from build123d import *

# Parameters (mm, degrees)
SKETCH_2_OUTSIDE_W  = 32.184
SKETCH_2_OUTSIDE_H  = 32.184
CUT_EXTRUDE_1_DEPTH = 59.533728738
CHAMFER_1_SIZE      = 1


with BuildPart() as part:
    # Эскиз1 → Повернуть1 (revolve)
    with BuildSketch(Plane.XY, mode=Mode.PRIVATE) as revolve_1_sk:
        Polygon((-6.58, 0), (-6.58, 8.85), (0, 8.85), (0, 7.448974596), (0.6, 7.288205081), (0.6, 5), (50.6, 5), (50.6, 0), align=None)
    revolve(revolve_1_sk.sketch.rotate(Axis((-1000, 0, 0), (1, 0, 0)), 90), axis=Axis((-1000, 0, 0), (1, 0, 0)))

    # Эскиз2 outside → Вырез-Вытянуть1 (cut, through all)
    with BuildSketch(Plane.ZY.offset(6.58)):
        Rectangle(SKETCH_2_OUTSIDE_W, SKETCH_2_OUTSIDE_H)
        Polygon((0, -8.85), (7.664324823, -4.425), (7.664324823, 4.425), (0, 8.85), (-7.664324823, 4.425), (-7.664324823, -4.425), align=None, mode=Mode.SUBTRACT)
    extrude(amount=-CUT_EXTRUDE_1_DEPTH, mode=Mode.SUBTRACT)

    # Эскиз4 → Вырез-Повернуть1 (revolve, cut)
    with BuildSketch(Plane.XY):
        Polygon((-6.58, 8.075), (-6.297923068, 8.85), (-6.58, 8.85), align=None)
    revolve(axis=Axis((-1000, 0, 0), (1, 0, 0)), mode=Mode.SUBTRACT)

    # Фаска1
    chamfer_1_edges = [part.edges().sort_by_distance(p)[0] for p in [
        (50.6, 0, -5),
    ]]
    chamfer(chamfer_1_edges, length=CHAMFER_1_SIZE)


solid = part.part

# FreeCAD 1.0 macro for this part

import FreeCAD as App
import Part
import Sketcher

V = App.Vector
Q = App.Units.Quantity


def edges_at(feature, points):
    """Names of the edges that pass closest to the given points."""
    edges = feature.Shape.Edges
    near = lambda p: min(range(len(edges)), key=lambda i: edges[i].distToShape(Part.Vertex(*p))[0])
    return sorted({f"Edge{near(p) + 1}" for p in points})


def add_polygon(sketch, points):
    """Adds a closed chain of lines whose ends are joined by coincident constraints."""
    first, n = sketch.GeometryCount, len(points)
    for a, b in zip(points, points[1:] + points[:1]):
        sketch.addGeometry(Part.LineSegment(App.Vector(*a, 0), App.Vector(*b, 0)), False)
    for i in range(n):
        sketch.addConstraint(Sketcher.Constraint("Coincident", first + i, 2, first + (i + 1) % n, 1))

doc = App.newDocument("Part")
body = doc.addObject("PartDesign::Body", "Body")

sketch1 = doc.addObject("Sketcher::SketchObject", "Sketch")
body.addObject(sketch1)
sketch1.AttachmentSupport = (doc.XY_Plane, [""])
sketch1.MapMode = "FlatFace"
add_polygon(sketch1, [(-6.6, 8.8), (-6.6, 0), (50.6, 0), (50.6, 5), (0.6, 5), (0.6, 7.3), (0, 7.4), (0, 8.8)])
sketch1.addConstraint([
    Sketcher.Constraint("Vertical", 0),
    Sketcher.Constraint("Horizontal", 1),
    Sketcher.Constraint("Vertical", 2),
    Sketcher.Constraint("Horizontal", 3),
    Sketcher.Constraint("Vertical", 4),
    Sketcher.Constraint("Vertical", 6),
    Sketcher.Constraint("Horizontal", 7),
    Sketcher.Constraint("PointOnObject", 0, 2, -1),
    Sketcher.Constraint("PointOnObject", 5, 2, -2),
    Sketcher.Constraint("DistanceX", 3, 2, 3, 1, Q("50 mm")),
    Sketcher.Constraint("DistanceY", 2, 1, 2, 2, Q("5 mm")),
    Sketcher.Constraint("Angle", 5, Q("165 deg")),
    Sketcher.Constraint("DistanceX", 1, 1, 1, 2, Q("57.18 mm")),
    Sketcher.Constraint("DistanceX", 7, 2, 7, 1, Q("6.58 mm")),
    Sketcher.Constraint("DistanceY", 0, 2, 0, 1, Q("8.85 mm")),
    Sketcher.Constraint("DistanceY", 4, 1, 4, 2, Q("2.288205 mm")),
])
revolution = doc.addObject("PartDesign::Revolution", "Revolution")
body.addObject(revolution)
revolution.Profile = sketch1
revolution.ReferenceAxis = (sketch1, ["H_Axis"])
revolution.Angle = 360

sketch2 = doc.addObject("Sketcher::SketchObject", "Sketch001")
body.addObject(sketch2)
sketch2.AttachmentSupport = (doc.YZ_Plane, [""])
sketch2.MapMode = "FlatFace"
sketch2.AttachmentOffset = App.Placement(V(0, 0, -6.58), App.Rotation())
add_polygon(sketch2, [(16, -16), (-16, -16), (-16, 16), (16, 16)])
add_polygon(sketch2, [(-4, 8), (-9, 0), (-4, -8), (4, -8), (9, 0), (4, 8)])
sketch2.addConstraint([
    Sketcher.Constraint("Horizontal", 0),
    Sketcher.Constraint("Vertical", 1),
    Sketcher.Constraint("Horizontal", 2),
    Sketcher.Constraint("Vertical", 3),
    Sketcher.Constraint("Horizontal", 6),
    Sketcher.Constraint("Horizontal", 9),
    Sketcher.Constraint("Symmetric", 0, 2, 2, 2, -1, 1),
    Sketcher.Constraint("Symmetric", 4, 2, 7, 2, -1, 1),
    Sketcher.Constraint("Symmetric", 5, 2, 8, 2, -1, 1),
    Sketcher.Constraint("PointOnObject", 4, 2, -1),
    Sketcher.Constraint("Parallel", 4, 7),
    Sketcher.Constraint("Vertical", 6, 2, 8, 2),
    Sketcher.Constraint("Equal", 2, 1),
    Sketcher.Constraint("Angle", 4, Q("-120 deg")),
    Sketcher.Constraint("DistanceX", 6, 1, 6, 2, Q("8.85 mm")),
    Sketcher.Constraint("DistanceX", 4, 2, 7, 2, Q("17.7 mm")),
    Sketcher.Constraint("DistanceX", 0, 2, 0, 1, Q("32.184 mm")),
])
pocket1 = doc.addObject("PartDesign::Pocket", "Pocket")
body.addObject(pocket1)
pocket1.Profile = sketch2
pocket1.Type = "ThroughAll"
pocket1.Reversed = True

sketch3 = doc.addObject("Sketcher::SketchObject", "Sketch002")
body.addObject(sketch3)
sketch3.AttachmentSupport = (doc.XY_Plane, [""])
sketch3.MapMode = "FlatFace"
add_polygon(sketch3, [(-6.58, 8.07), (-6.3, 8.85), (-6.58, 8.85)])
sketch3.addConstraint([
    Sketcher.Constraint("Horizontal", 1),
    Sketcher.Constraint("Vertical", 2),
    Sketcher.Constraint("Angle", 0, Q("70 deg")),
    Sketcher.Constraint("DistanceY", 2, 2, 2, 1, Q("0.775 mm")),
    Sketcher.Constraint("DistanceY", -1, 1, 0, 2, Q("8.85 mm")),
    Sketcher.Constraint("DistanceX", 1, 2, -1, 1, Q("6.58 mm")),
])
groove = doc.addObject("PartDesign::Groove", "Groove")
body.addObject(groove)
groove.Profile = sketch3
groove.ReferenceAxis = (sketch3, ["H_Axis"])
groove.Angle = 360
doc.recompute()

chamfer = doc.addObject("PartDesign::Chamfer", "Chamfer")
body.addObject(chamfer)
chamfer.Base = (groove, edges_at(groove, [(50.6, 0, -5)]))
chamfer.Size = 1

doc.recompute()
